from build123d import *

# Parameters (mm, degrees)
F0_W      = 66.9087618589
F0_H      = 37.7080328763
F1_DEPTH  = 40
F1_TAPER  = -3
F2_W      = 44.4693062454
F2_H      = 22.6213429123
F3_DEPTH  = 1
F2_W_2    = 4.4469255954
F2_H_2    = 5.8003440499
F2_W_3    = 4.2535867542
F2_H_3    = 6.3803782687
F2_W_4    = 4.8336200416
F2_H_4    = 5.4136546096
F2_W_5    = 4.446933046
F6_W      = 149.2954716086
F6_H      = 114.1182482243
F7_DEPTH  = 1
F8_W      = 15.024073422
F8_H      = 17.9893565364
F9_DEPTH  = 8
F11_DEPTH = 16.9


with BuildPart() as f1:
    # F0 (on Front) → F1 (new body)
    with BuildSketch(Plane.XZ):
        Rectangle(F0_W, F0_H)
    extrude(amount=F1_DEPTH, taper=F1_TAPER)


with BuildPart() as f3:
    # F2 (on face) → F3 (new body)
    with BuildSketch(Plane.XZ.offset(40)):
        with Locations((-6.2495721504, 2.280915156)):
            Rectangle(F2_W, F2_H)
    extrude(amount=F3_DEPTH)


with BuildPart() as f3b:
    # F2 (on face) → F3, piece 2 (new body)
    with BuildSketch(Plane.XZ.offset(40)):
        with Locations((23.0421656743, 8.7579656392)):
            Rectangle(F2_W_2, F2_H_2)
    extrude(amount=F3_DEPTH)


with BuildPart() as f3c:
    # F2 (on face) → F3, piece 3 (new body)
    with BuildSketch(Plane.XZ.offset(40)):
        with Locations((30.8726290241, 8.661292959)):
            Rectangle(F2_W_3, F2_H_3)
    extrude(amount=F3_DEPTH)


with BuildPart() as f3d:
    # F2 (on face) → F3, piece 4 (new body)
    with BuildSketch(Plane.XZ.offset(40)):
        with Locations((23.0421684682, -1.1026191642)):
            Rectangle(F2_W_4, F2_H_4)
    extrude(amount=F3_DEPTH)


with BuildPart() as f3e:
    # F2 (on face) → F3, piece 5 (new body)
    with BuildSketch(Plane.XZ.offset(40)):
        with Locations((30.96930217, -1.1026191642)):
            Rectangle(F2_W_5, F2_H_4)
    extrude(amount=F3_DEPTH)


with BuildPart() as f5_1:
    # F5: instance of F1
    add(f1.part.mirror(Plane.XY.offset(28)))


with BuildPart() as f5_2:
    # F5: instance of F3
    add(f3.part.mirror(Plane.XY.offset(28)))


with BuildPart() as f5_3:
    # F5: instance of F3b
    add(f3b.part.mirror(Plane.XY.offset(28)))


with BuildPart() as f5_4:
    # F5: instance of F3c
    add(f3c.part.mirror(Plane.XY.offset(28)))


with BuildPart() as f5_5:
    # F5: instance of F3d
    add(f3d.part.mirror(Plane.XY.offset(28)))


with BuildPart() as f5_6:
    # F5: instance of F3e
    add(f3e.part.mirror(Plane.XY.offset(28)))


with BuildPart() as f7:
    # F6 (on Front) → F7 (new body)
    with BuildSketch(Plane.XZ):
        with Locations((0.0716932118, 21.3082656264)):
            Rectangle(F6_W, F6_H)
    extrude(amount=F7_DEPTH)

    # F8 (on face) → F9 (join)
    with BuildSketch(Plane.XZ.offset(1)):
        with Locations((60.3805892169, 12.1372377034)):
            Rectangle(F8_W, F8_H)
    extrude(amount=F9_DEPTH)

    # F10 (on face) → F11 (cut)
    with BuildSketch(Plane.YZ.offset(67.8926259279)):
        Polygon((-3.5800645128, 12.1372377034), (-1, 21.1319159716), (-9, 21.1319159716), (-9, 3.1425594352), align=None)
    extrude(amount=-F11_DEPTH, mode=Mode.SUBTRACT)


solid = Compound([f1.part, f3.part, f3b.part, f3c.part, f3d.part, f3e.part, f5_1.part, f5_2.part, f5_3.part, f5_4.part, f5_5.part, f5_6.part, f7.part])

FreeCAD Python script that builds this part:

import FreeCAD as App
import Part
import Sketcher

V = App.Vector
Q = App.Units.Quantity

doc = App.newDocument("Part")
body = doc.addObject("PartDesign::Body", "Body")

# Sketch on XZ plane
sketch1 = body.newObject("Sketcher::SketchObject", "Sketch")
sketch1.AttachmentSupport = (doc.getObject("XZ_Plane"), [""])
sketch1.MapMode = "FlatFace"
sketch1.addGeometry(Part.LineSegment(V(-33, 19, 0), V(-33, -19, 0)), False)
sketch1.addGeometry(Part.LineSegment(V(-33, -19, 0), V(33, -19, 0)), False)
sketch1.addGeometry(Part.LineSegment(V(33, -19, 0), V(33, 19, 0)), False)
sketch1.addGeometry(Part.LineSegment(V(33, 19, 0), V(-33, 19, 0)), False)
sketch1.addConstraint(Sketcher.Constraint("Coincident", 0, 2, 1, 1))
sketch1.addConstraint(Sketcher.Constraint("Coincident", 1, 2, 2, 1))
sketch1.addConstraint(Sketcher.Constraint("Coincident", 2, 2, 3, 1))
sketch1.addConstraint(Sketcher.Constraint("Coincident", 3, 2, 0, 1))
sketch1.addConstraint(Sketcher.Constraint("Vertical", 0))
sketch1.addConstraint(Sketcher.Constraint("Horizontal", 1))
sketch1.addConstraint(Sketcher.Constraint("Vertical", 2))
sketch1.addConstraint(Sketcher.Constraint("Horizontal", 3))
sketch1.addConstraint(Sketcher.Constraint("Symmetric", 0, 2, 2, 2, -1, 1))
sketch1.addConstraint(Sketcher.Constraint("DistanceX", 1, 1, 1, 2, Q("66.908762 mm")))
sketch1.addConstraint(Sketcher.Constraint("DistanceY", 0, 2, 0, 1, Q("37.708033 mm")))
pad1 = body.newObject("PartDesign::Pad", "Pad")
pad1.Profile = sketch1
pad1.Length = 40
pad1.TaperAngle = 3
body2 = doc.addObject("PartDesign::Body", "Body001")

# Sketch on XZ plane
sketch2 = body2.newObject("Sketcher::SketchObject", "Sketch001")
sketch2.AttachmentSupport = (doc.getObject("XZ_Plane001"), [""])
sketch2.MapMode = "FlatFace"
sketch2.AttachmentOffset = App.Placement(V(0, 0, 40), App.Rotation())
sketch2.addGeometry(Part.LineSegment(V(-28, 14, 0), V(-28, -9, 0)), False)
sketch2.addGeometry(Part.LineSegment(V(-28, -9, 0), V(16, -9, 0)), False)
sketch2.addGeometry(Part.LineSegment(V(16, -9, 0), V(16, 14, 0)), False)
sketch2.addGeometry(Part.LineSegment(V(16, 14, 0), V(-28, 14, 0)), False)
sketch2.addConstraint(Sketcher.Constraint("Coincident", 0, 2, 1, 1))
sketch2.addConstraint(Sketcher.Constraint("Coincident", 1, 2, 2, 1))
sketch2.addConstraint(Sketcher.Constraint("Coincident", 2, 2, 3, 1))
sketch2.addConstraint(Sketcher.Constraint("Coincident", 3, 2, 0, 1))
sketch2.addConstraint(Sketcher.Constraint("Vertical", 0))
sketch2.addConstraint(Sketcher.Constraint("Horizontal", 1))
sketch2.addConstraint(Sketcher.Constraint("Vertical", 2))
sketch2.addConstraint(Sketcher.Constraint("Horizontal", 3))
sketch2.addConstraint(Sketcher.Constraint("DistanceX", 1, 1, 1, 2, Q("44.469306 mm")))
sketch2.addConstraint(Sketcher.Constraint("DistanceY", 0, 2, 0, 1, Q("22.621343 mm")))
sketch2.addConstraint(Sketcher.Constraint("DistanceX", -1, 1, 1, 2, Q("15.985081 mm")))
sketch2.addConstraint(Sketcher.Constraint("DistanceY", 0, 2, -1, 1, Q("9.029756 mm")))
pad2 = body2.newObject("PartDesign::Pad", "Pad001")
pad2.Profile = sketch2
pad2.Length = 1
body3 = doc.addObject("PartDesign::Body", "Body002")

# Sketch on XZ plane
sketch3 = body3.newObject("Sketcher::SketchObject", "Sketch002")
sketch3.AttachmentSupport = (doc.getObject("XZ_Plane002"), [""])
sketch3.MapMode = "FlatFace"
sketch3.AttachmentOffset = App.Placement(V(0, 0, 40), App.Rotation())
sketch3.addGeometry(Part.LineSegment(V(20.8, 11.7, 0), V(20.8, 5.9, 0)), False)
sketch3.addGeometry(Part.LineSegment(V(20.8, 5.9, 0), V(25.3, 5.9, 0)), False)
sketch3.addGeometry(Part.LineSegment(V(25.3, 5.9, 0), V(25.3, 11.7, 0)), False)
sketch3.addGeometry(Part.LineSegment(V(25.3, 11.7, 0), V(20.8, 11.7, 0)), False)
sketch3.addConstraint(Sketcher.Constraint("Coincident", 0, 2, 1, 1))
sketch3.addConstraint(Sketcher.Constraint("Coincident", 1, 2, 2, 1))
sketch3.addConstraint(Sketcher.Constraint("Coincident", 2, 2, 3, 1))
sketch3.addConstraint(Sketcher.Constraint("Coincident", 3, 2, 0, 1))
sketch3.addConstraint(Sketcher.Constraint("Vertical", 0))
sketch3.addConstraint(Sketcher.Constraint("Horizontal", 1))
sketch3.addConstraint(Sketcher.Constraint("Vertical", 2))
sketch3.addConstraint(Sketcher.Constraint("Horizontal", 3))
sketch3.addConstraint(Sketcher.Constraint("DistanceX", 1, 1, 1, 2, Q("4.446926 mm")))
sketch3.addConstraint(Sketcher.Constraint("DistanceY", 0, 2, 0, 1, Q("5.800344 mm")))
sketch3.addConstraint(Sketcher.Constraint("DistanceX", -1, 1, 1, 2, Q("25.265628 mm")))
sketch3.addConstraint(Sketcher.Constraint("DistanceY", -1, 1, 0, 2, Q("5.857794 mm")))
pad3 = body3.newObject("PartDesign::Pad", "Pad002")
pad3.Profile = sketch3
pad3.Length = 1
body4 = doc.addObject("PartDesign::Body", "Body003")

# Sketch on XZ plane
sketch4 = body4.newObject("Sketcher::SketchObject", "Sketch003")
sketch4.AttachmentSupport = (doc.getObject("XZ_Plane003"), [""])
sketch4.MapMode = "FlatFace"
sketch4.AttachmentOffset = App.Placement(V(0, 0, 40), App.Rotation())
sketch4.addGeometry(Part.LineSegment(V(28.7, 11.9, 0), V(28.7, 5.5, 0)), False)
sketch4.addGeometry(Part.LineSegment(V(28.7, 5.5, 0), V(33, 5.5, 0)), False)
sketch4.addGeometry(Part.LineSegment(V(33, 5.5, 0), V(33, 11.9, 0)), False)
sketch4.addGeometry(Part.LineSegment(V(33, 11.9, 0), V(28.7, 11.9, 0)), False)
sketch4.addConstraint(Sketcher.Constraint("Coincident", 0, 2, 1, 1))
sketch4.addConstraint(Sketcher.Constraint("Coincident", 1, 2, 2, 1))
sketch4.addConstraint(Sketcher.Constraint("Coincident", 2, 2, 3, 1))
sketch4.addConstraint(Sketcher.Constraint("Coincident", 3, 2, 0, 1))
sketch4.addConstraint(Sketcher.Constraint("Vertical", 0))
sketch4.addConstraint(Sketcher.Constraint("Horizontal", 1))
sketch4.addConstraint(Sketcher.Constraint("Vertical", 2))
sketch4.addConstraint(Sketcher.Constraint("Horizontal", 3))
sketch4.addConstraint(Sketcher.Constraint("DistanceY", 0, 2, 0, 1, Q("6.380378 mm")))
sketch4.addConstraint(Sketcher.Constraint("DistanceX", 1, 1, 1, 2, Q("4.253587 mm")))
sketch4.addConstraint(Sketcher.Constraint("DistanceX", -1, 1, 0, 2, Q("28.745836 mm")))
sketch4.addConstraint(Sketcher.Constraint("DistanceY", -1, 1, 0, 2, Q("5.471104 mm")))
pad4 = body4.newObject("PartDesign::Pad", "Pad003")
pad4.Profile = sketch4
pad4.Length = 1
body5 = doc.addObject("PartDesign::Body", "Body004")

# Sketch on XZ plane
sketch5 = body5.newObject("Sketcher::SketchObject", "Sketch004")
sketch5.AttachmentSupport = (doc.getObject("XZ_Plane004"), [""])
sketch5.MapMode = "FlatFace"
sketch5.AttachmentOffset = App.Placement(V(0, 0, 40), App.Rotation())
sketch5.addGeometry(Part.LineSegment(V(20.6, 1.6, 0), V(20.6, -3.8, 0)), False)
sketch5.addGeometry(Part.LineSegment(V(20.6, -3.8, 0), V(25.5, -3.8, 0)), False)
sketch5.addGeometry(Part.LineSegment(V(25.5, -3.8, 0), V(25.5, 1.6, 0)), False)
sketch5.addGeometry(Part.LineSegment(V(25.5, 1.6, 0), V(20.6, 1.6, 0)), False)
sketch5.addConstraint(Sketcher.Constraint("Coincident", 0, 2, 1, 1))
sketch5.addConstraint(Sketcher.Constraint("Coincident", 1, 2, 2, 1))
sketch5.addConstraint(Sketcher.Constraint("Coincident", 2, 2, 3, 1))
sketch5.addConstraint(Sketcher.Constraint("Coincident", 3, 2, 0, 1))
sketch5.addConstraint(Sketcher.Constraint("Vertical", 0))
sketch5.addConstraint(Sketcher.Constraint("Horizontal", 1))
sketch5.addConstraint(Sketcher.Constraint("Vertical", 2))
sketch5.addConstraint(Sketcher.Constraint("Horizontal", 3))
sketch5.addConstraint(Sketcher.Constraint("DistanceX", 1, 1, 1, 2, Q("4.83362 mm")))
sketch5.addConstraint(Sketcher.Constraint("DistanceY", 0, 2, 0, 1, Q("5.413655 mm")))
sketch5.addConstraint(Sketcher.Constraint("DistanceX", -1, 1, 0, 2, Q("20.625358 mm")))
sketch5.addConstraint(Sketcher.Constraint("DistanceY", -1, 1, 2, 2, Q("1.604208 mm")))
pad5 = body5.newObject("PartDesign::Pad", "Pad004")
pad5.Profile = sketch5
pad5.Length = 1
body6 = doc.addObject("PartDesign::Body", "Body005")

# Sketch on XZ plane
sketch6 = body6.newObject("Sketcher::SketchObject", "Sketch005")
sketch6.AttachmentSupport = (doc.getObject("XZ_Plane005"), [""])
sketch6.MapMode = "FlatFace"
sketch6.AttachmentOffset = App.Placement(V(0, 0, 40), App.Rotation())
sketch6.addGeometry(Part.LineSegment(V(28.7, 1.6, 0), V(28.7, -3.8, 0)), False)
sketch6.addGeometry(Part.LineSegment(V(28.7, -3.8, 0), V(33.2, -3.8, 0)), False)
sketch6.addGeometry(Part.LineSegment(V(33.2, -3.8, 0), V(33.2, 1.6, 0)), False)
sketch6.addGeometry(Part.LineSegment(V(33.2, 1.6, 0), V(28.7, 1.6, 0)), False)
sketch6.addConstraint(Sketcher.Constraint("Coincident", 0, 2, 1, 1))
sketch6.addConstraint(Sketcher.Constraint("Coincident", 1, 2, 2, 1))
sketch6.addConstraint(Sketcher.Constraint("Coincident", 2, 2, 3, 1))
sketch6.addConstraint(Sketcher.Constraint("Coincident", 3, 2, 0, 1))
sketch6.addConstraint(Sketcher.Constraint("Vertical", 0))
sketch6.addConstraint(Sketcher.Constraint("Horizontal", 1))
sketch6.addConstraint(Sketcher.Constraint("Vertical", 2))
sketch6.addConstraint(Sketcher.Constraint("Horizontal", 3))
sketch6.addConstraint(Sketcher.Constraint("DistanceX", 1, 1, 1, 2, Q("4.446933 mm")))
sketch6.addConstraint(Sketcher.Constraint("DistanceY", 0, 2, 0, 1, Q("5.413655 mm")))
sketch6.addConstraint(Sketcher.Constraint("DistanceX", -1, 1, 1, 2, Q("33.192769 mm")))
sketch6.addConstraint(Sketcher.Constraint("DistanceY", -1, 1, 2, 2, Q("1.604208 mm")))
pad6 = body6.newObject("PartDesign::Pad", "Pad005")
pad6.Profile = sketch6
pad6.Length = 1
body7 = doc.addObject("PartDesign::Body", "Body006")
doc.recompute()

mirroring = doc.addObject("Part::Mirroring", "Mirroring")
mirroring.Source = body
mirroring.Base = V(0, 0, 28)
mirroring.Normal = V(0, 0, 1)
body7.BaseFeature = mirroring
doc.recompute()
body8 = doc.addObject("PartDesign::Body", "Body007")
doc.recompute()

mirroring2 = doc.addObject("Part::Mirroring", "Mirroring001")
mirroring2.Source = body2
mirroring2.Base = V(0, 0, 28)
mirroring2.Normal = V(0, 0, 1)
body8.BaseFeature = mirroring2
doc.recompute()
body9 = doc.addObject("PartDesign::Body", "Body008")
doc.recompute()

mirroring3 = doc.addObject("Part::Mirroring", "Mirroring002")
mirroring3.Source = body3
mirroring3.Base = V(0, 0, 28)
mirroring3.Normal = V(0, 0, 1)
body9.BaseFeature = mirroring3
doc.recompute()
body10 = doc.addObject("PartDesign::Body", "Body009")
doc.recompute()

mirroring4 = doc.addObject("Part::Mirroring", "Mirroring003")
mirroring4.Source = body4
mirroring4.Base = V(0, 0, 28)
mirroring4.Normal = V(0, 0, 1)
body10.BaseFeature = mirroring4
doc.recompute()
body11 = doc.addObject("PartDesign::Body", "Body010")
doc.recompute()

mirroring5 = doc.addObject("Part::Mirroring", "Mirroring004")
mirroring5.Source = body5
mirroring5.Base = V(0, 0, 28)
mirroring5.Normal = V(0, 0, 1)
body11.BaseFeature = mirroring5
doc.recompute()
body12 = doc.addObject("PartDesign::Body", "Body011")
doc.recompute()

mirroring6 = doc.addObject("Part::Mirroring", "Mirroring005")
mirroring6.Source = body6
mirroring6.Base = V(0, 0, 28)
mirroring6.Normal = V(0, 0, 1)
body12.BaseFeature = mirroring6
doc.recompute()
body13 = doc.addObject("PartDesign::Body", "Body012")

# Sketch on XZ plane
sketch7 = body13.newObject("Sketcher::SketchObject", "Sketch006")
sketch7.AttachmentSupport = (doc.getObject("XZ_Plane012"), [""])
sketch7.MapMode = "FlatFace"
sketch7.addGeometry(Part.LineSegment(V(-75, 78, 0), V(-75, -36, 0)), False)
sketch7.addGeometry(Part.LineSegment(V(-75, -36, 0), V(75, -36, 0)), False)
sketch7.addGeometry(Part.LineSegment(V(75, -36, 0), V(75, 78, 0)), False)
sketch7.addGeometry(Part.LineSegment(V(75, 78, 0), V(-75, 78, 0)), False)
sketch7.addConstraint(Sketcher.Constraint("Coincident", 0, 2, 1, 1))
sketch7.addConstraint(Sketcher.Constraint("Coincident", 1, 2, 2, 1))
sketch7.addConstraint(Sketcher.Constraint("Coincident", 2, 2, 3, 1))
sketch7.addConstraint(Sketcher.Constraint("Coincident", 3, 2, 0, 1))
sketch7.addConstraint(Sketcher.Constraint("Vertical", 0))
sketch7.addConstraint(Sketcher.Constraint("Horizontal", 1))
sketch7.addConstraint(Sketcher.Constraint("Vertical", 2))
sketch7.addConstraint(Sketcher.Constraint("Horizontal", 3))
sketch7.addConstraint(Sketcher.Constraint("DistanceX", 1, 1, 1, 2, Q("149.295472 mm")))
sketch7.addConstraint(Sketcher.Constraint("DistanceY", 0, 2, 0, 1, Q("114.118248 mm")))
sketch7.addConstraint(Sketcher.Constraint("DistanceY", 0, 2, -1, 1, Q("35.750858 mm")))
sketch7.addConstraint(Sketcher.Constraint("DistanceX", -1, 1, 1, 2, Q("74.719429 mm")))
pad7 = body13.newObject("PartDesign::Pad", "Pad006")
pad7.Profile = sketch7
pad7.Length = 1

# Sketch on XZ plane
sketch8 = body13.newObject("Sketcher::SketchObject", "Sketch007")
sketch8.AttachmentSupport = (doc.getObject("XZ_Plane012"), [""])
sketch8.MapMode = "FlatFace"
sketch8.AttachmentOffset = App.Placement(V(0, 0, 1), App.Rotation())
sketch8.addGeometry(Part.LineSegment(V(53, 21, 0), V(53, 3, 0)), False)
sketch8.addGeometry(Part.LineSegment(V(53, 3, 0), V(68, 3, 0)), False)
sketch8.addGeometry(Part.LineSegment(V(68, 3, 0), V(68, 21, 0)), False)
sketch8.addGeometry(Part.LineSegment(V(68, 21, 0), V(53, 21, 0)), False)
sketch8.addConstraint(Sketcher.Constraint("Coincident", 0, 2, 1, 1))
sketch8.addConstraint(Sketcher.Constraint("Coincident", 1, 2, 2, 1))
sketch8.addConstraint(Sketcher.Constraint("Coincident", 2, 2, 3, 1))
sketch8.addConstraint(Sketcher.Constraint("Coincident", 3, 2, 0, 1))
sketch8.addConstraint(Sketcher.Constraint("Vertical", 0))
sketch8.addConstraint(Sketcher.Constraint("Horizontal", 1))
sketch8.addConstraint(Sketcher.Constraint("Vertical", 2))
sketch8.addConstraint(Sketcher.Constraint("Horizontal", 3))
sketch8.addConstraint(Sketcher.Constraint("DistanceX", 1, 1, 1, 2, Q("15.024073 mm")))
sketch8.addConstraint(Sketcher.Constraint("DistanceY", 0, 2, 0, 1, Q("17.989357 mm")))
sketch8.addConstraint(Sketcher.Constraint("DistanceY", -1, 1, 0, 2, Q("3.142559 mm")))
sketch8.addConstraint(Sketcher.Constraint("DistanceX", -1, 1, 0, 2, Q("52.868553 mm")))
pad8 = body13.newObject("PartDesign::Pad", "Pad007")
pad8.Profile = sketch8
pad8.Length = 8

# Sketch on YZ plane
sketch9 = body13.newObject("Sketcher::SketchObject", "Sketch008")
sketch9.AttachmentSupport = (doc.getObject("YZ_Plane012"), [""])
sketch9.MapMode = "FlatFace"
sketch9.AttachmentOffset = App.Placement(V(0, 0, 67.892626), App.Rotation())
sketch9.addGeometry(Part.LineSegment(V(-4, 12, 0), V(-1, 21, 0)), False)
sketch9.addGeometry(Part.LineSegment(V(-1, 21, 0), V(-9, 21, 0)), False)
sketch9.addGeometry(Part.LineSegment(V(-9, 21, 0), V(-9, 3, 0)), False)
sketch9.addGeometry(Part.LineSegment(V(-9, 3, 0), V(-4, 12, 0)), False)
sketch9.addConstraint(Sketcher.Constraint("Coincident", 0, 2, 1, 1))
sketch9.addConstraint(Sketcher.Constraint("Coincident", 1, 2, 2, 1))
sketch9.addConstraint(Sketcher.Constraint("Coincident", 2, 2, 3, 1))
sketch9.addConstraint(Sketcher.Constraint("Coincident", 3, 2, 0, 1))
sketch9.addConstraint(Sketcher.Constraint("Horizontal", 1))
sketch9.addConstraint(Sketcher.Constraint("Vertical", 2))
sketch9.addConstraint(Sketcher.Constraint("DistanceX", 1, 2, 1, 1, Q("8 mm")))
sketch9.addConstraint(Sketcher.Constraint("DistanceX", 0, 2, -1, 1, Q("1 mm")))
sketch9.addConstraint(Sketcher.Constraint("Distance", 0, Q("9.357402 mm")))
sketch9.addConstraint(Sketcher.Constraint("DistanceY", 2, 2, 2, 1, Q("17.989357 mm")))
sketch9.addConstraint(Sketcher.Constraint("DistanceY", -1, 1, 2, 2, Q("3.142559 mm")))
sketch9.addConstraint(Sketcher.Constraint("DistanceY", 3, 2, 0, 2, Q("8.994678 mm")))
pocket1 = body13.newObject("PartDesign::Pocket", "Pocket")
pocket1.Profile = sketch9
pocket1.Length = 16.9
mirroring.Visibility = False
mirroring2.Visibility = False
mirroring3.Visibility = False
mirroring4.Visibility = False
mirroring5.Visibility = False
mirroring6.Visibility = False

doc.recompute()
